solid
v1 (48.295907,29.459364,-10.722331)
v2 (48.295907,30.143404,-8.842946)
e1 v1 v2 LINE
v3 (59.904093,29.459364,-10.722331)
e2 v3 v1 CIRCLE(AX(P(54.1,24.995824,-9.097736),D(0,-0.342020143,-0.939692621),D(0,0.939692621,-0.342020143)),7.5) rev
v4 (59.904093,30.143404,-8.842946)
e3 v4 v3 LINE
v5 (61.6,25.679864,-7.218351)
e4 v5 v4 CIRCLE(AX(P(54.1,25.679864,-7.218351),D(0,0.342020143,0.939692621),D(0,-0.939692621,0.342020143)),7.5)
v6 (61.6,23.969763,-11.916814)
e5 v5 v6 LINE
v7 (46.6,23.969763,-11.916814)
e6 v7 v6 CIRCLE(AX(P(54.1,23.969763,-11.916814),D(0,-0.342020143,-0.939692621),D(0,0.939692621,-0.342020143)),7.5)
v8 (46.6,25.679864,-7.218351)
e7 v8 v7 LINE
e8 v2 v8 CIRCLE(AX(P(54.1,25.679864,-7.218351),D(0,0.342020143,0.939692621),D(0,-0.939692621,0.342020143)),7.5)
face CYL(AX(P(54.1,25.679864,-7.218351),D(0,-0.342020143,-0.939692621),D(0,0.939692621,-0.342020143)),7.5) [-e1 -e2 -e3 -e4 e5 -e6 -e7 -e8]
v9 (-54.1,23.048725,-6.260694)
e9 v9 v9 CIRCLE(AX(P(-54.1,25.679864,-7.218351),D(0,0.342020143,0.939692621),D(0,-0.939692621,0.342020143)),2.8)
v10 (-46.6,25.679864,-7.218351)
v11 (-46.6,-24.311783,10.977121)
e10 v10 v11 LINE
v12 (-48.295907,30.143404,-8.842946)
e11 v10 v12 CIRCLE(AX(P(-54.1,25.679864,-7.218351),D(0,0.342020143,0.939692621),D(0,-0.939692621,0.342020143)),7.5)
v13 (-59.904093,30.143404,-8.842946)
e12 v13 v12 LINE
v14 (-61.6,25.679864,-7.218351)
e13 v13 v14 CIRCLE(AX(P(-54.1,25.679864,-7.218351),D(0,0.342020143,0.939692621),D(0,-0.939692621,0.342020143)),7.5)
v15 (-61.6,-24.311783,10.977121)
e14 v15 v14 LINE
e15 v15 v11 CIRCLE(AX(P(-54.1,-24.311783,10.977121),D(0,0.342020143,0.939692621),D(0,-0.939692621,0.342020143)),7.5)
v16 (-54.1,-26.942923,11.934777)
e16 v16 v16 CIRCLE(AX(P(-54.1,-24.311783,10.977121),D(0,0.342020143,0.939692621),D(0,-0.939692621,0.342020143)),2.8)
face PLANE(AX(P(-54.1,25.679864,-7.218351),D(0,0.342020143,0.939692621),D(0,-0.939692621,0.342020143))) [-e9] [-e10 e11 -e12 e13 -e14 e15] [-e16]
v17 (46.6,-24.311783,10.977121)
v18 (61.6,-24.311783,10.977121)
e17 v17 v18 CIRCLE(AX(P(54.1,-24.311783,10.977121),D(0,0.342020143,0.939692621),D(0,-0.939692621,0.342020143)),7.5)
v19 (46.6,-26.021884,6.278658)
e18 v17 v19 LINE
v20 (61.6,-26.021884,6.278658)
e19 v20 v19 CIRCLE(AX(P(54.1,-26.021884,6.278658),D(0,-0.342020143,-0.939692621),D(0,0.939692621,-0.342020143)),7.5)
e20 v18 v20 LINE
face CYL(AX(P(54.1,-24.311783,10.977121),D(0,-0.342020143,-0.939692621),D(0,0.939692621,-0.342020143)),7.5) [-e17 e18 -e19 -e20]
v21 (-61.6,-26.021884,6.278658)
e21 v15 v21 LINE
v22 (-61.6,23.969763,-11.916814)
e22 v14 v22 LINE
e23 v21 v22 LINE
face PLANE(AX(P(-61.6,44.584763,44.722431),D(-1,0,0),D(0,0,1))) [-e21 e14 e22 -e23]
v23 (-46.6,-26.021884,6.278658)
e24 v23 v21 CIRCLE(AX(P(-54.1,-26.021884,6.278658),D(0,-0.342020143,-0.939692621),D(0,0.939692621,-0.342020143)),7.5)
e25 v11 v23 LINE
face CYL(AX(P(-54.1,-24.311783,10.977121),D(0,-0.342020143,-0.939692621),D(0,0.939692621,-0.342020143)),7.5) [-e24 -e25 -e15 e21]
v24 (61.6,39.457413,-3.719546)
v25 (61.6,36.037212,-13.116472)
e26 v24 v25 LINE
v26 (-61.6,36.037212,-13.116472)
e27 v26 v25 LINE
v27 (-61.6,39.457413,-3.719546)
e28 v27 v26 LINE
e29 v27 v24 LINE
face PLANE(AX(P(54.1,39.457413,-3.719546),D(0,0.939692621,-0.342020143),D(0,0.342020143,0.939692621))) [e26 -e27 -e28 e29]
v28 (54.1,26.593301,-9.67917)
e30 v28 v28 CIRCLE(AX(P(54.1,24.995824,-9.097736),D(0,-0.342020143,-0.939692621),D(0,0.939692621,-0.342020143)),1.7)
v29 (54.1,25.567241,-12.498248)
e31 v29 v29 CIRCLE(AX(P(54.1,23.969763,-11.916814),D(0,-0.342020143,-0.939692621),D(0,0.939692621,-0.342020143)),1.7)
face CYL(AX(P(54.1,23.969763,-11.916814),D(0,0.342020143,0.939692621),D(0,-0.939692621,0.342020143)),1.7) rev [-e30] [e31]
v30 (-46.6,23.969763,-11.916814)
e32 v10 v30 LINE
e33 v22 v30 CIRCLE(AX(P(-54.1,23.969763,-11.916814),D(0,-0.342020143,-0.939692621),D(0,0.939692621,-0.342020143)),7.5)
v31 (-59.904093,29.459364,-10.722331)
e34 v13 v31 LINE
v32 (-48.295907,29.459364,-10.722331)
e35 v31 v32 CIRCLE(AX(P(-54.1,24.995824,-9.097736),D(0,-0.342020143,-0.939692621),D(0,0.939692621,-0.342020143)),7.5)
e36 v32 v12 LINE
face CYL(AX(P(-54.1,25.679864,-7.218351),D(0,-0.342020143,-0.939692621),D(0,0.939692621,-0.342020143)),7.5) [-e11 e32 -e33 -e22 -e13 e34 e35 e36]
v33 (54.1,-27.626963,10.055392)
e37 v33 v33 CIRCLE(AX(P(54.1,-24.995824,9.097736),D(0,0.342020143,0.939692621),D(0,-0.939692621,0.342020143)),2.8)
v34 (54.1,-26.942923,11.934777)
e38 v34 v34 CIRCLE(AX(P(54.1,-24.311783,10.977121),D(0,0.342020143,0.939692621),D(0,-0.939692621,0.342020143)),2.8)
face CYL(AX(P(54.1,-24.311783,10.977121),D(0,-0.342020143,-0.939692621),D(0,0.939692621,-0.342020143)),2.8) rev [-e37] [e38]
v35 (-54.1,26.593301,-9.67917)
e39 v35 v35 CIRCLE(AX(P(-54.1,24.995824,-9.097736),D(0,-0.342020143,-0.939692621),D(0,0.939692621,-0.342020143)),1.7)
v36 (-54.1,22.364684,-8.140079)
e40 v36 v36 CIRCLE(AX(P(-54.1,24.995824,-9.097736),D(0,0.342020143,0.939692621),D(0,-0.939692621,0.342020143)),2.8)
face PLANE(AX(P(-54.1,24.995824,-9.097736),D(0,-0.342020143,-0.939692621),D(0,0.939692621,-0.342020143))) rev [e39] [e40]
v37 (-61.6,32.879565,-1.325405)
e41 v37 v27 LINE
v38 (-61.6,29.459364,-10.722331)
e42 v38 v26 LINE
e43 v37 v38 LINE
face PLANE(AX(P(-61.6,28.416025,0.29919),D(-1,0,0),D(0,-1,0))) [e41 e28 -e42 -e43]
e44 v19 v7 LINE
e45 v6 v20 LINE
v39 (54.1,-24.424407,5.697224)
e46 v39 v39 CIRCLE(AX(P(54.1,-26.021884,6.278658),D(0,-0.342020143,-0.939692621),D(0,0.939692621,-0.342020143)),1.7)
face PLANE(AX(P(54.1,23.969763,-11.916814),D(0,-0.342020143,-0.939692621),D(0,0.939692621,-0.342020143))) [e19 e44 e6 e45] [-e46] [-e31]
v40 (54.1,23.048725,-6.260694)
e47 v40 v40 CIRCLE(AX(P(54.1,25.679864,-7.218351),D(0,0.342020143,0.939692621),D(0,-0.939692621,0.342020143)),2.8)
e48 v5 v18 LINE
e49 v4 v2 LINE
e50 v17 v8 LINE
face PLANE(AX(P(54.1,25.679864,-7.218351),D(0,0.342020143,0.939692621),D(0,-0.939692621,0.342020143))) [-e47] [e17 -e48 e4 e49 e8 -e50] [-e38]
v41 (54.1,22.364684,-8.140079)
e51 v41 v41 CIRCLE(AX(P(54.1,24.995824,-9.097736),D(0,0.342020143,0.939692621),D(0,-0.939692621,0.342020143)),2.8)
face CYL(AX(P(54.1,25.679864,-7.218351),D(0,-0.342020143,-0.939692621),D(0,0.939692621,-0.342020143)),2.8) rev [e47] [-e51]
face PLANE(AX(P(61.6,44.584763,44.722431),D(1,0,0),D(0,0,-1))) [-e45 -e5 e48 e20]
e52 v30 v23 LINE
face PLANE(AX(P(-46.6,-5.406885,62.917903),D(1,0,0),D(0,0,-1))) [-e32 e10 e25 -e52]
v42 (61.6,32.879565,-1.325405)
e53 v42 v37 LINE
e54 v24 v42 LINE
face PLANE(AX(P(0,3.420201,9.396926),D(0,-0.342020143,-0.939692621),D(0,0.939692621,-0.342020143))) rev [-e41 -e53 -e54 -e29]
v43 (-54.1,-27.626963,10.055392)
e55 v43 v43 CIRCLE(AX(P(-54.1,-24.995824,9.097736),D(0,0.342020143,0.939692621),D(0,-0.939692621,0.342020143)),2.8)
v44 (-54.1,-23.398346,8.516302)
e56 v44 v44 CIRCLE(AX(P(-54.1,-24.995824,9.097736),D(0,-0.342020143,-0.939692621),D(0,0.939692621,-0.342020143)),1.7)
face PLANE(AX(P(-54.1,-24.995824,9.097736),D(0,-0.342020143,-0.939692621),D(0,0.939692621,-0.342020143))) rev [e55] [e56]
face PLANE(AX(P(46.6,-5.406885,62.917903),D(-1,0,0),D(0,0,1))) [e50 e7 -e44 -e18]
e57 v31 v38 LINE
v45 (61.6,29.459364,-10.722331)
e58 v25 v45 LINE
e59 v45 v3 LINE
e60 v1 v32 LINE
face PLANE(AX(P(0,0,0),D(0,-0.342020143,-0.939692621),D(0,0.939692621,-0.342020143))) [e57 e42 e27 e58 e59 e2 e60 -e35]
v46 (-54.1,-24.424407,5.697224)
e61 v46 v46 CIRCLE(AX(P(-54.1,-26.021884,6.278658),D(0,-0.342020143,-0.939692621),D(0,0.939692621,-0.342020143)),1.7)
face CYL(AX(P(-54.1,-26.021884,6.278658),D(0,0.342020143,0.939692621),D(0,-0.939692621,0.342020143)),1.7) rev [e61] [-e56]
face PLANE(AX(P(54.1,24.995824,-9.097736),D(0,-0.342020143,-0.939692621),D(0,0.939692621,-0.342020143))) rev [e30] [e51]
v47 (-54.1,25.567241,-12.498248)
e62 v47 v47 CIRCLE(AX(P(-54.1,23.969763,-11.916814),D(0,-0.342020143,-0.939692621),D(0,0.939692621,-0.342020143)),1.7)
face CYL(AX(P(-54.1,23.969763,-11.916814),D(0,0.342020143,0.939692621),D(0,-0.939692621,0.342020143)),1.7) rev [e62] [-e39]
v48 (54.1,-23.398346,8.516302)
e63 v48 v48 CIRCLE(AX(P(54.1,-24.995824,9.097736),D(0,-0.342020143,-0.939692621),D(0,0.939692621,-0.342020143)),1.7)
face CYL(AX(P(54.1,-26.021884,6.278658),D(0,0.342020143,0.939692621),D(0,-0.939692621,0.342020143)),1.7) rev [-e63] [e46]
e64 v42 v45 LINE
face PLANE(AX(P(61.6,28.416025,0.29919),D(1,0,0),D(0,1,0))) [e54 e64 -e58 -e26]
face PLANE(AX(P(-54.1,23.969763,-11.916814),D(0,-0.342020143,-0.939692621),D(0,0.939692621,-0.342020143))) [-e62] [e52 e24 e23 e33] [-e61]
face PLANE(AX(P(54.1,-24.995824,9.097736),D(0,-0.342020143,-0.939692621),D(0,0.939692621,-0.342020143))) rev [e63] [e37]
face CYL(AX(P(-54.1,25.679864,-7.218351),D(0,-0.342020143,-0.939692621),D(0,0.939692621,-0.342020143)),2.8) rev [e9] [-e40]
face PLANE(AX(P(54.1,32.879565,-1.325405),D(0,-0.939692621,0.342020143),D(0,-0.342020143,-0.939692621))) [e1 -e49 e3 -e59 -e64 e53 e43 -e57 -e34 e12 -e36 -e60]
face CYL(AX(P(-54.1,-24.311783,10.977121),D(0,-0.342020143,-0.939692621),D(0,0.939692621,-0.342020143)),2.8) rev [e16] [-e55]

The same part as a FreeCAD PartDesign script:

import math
import FreeCAD as App
import Part
import Sketcher
from FreeCAD import Vector


def add_polygon(sketch, points):
    """Adds a closed chain of lines whose ends are joined by coincident constraints."""
    first, n = sketch.GeometryCount, len(points)
    for a, b in zip(points, points[1:] + points[:1]):
        sketch.addGeometry(Part.LineSegment(App.Vector(*a, 0), App.Vector(*b, 0)), False)
    for i in range(n):
        sketch.addConstraint(Sketcher.Constraint("Coincident", first + i, 2, first + (i + 1) % n, 1))

doc = App.newDocument("Part")
body = doc.addObject("PartDesign::Body", "Body")

# Sketch on an angled plane
sketch1 = body.newObject("Sketcher::SketchObject", "Sketch")
sketch1.Placement = App.Placement(Vector(0, 0, 0), App.Rotation(Vector(1, 0, 0), Vector(0, 0.939692621, -0.342020143), Vector(0, 0.342020143, 0.939692621), "ZXY"))
sketch1.addGeometry(Part.Circle(Vector(-54.1, 26.6, 0), Vector(0, 0, 1), 7.5), False)
sketch1.addGeometry(Part.Circle(Vector(-54.1, 26.6, 0), Vector(0, 0, 1), 2.8), False)
sketch1.addConstraint(Sketcher.Constraint("Coincident", 1, 3, 0, 3))
sketch1.addConstraint(Sketcher.Constraint("Diameter", 0, 15.0))
sketch1.addConstraint(Sketcher.Constraint("Diameter", 1, 5.6))
sketch1.addConstraint(Sketcher.Constraint("DistanceX", 0, 3, -1, 1, 54.1))
sketch1.addConstraint(Sketcher.Constraint("DistanceY", -1, 1, 0, 3, 26.6))
pad1 = body.newObject("PartDesign::Pad", "Pad")
pad1.Profile = sketch1
pad1.Length = 2
body2 = doc.addObject("PartDesign::Body", "Body001")

# Sketch on an angled plane
sketch2 = body2.newObject("Sketcher::SketchObject", "Sketch001")
sketch2.Placement = App.Placement(Vector(0, 0, 0), App.Rotation(Vector(1, 0, 0), Vector(0, 0.939692621, -0.342020143), Vector(0, 0.342020143, 0.939692621), "ZXY"))
sketch2.addGeometry(Part.Circle(Vector(54.1, 26.6, 0), Vector(0, 0, 1), 7.5), False)
sketch2.addGeometry(Part.Circle(Vector(54.1, 26.6, 0), Vector(0, 0, 1), 2.8), False)
sketch2.addConstraint(Sketcher.Constraint("Coincident", 1, 3, 0, 3))
sketch2.addConstraint(Sketcher.Constraint("Diameter", 0, 15.0))
sketch2.addConstraint(Sketcher.Constraint("Diameter", 1, 5.6))
sketch2.addConstraint(Sketcher.Constraint("DistanceX", -1, 1, 0, 3, 54.1))
sketch2.addConstraint(Sketcher.Constraint("DistanceY", -1, 1, 0, 3, 26.6))
pad2 = body2.newObject("PartDesign::Pad", "Pad001")
pad2.Profile = sketch2
pad2.Length = 2
body3 = doc.addObject("PartDesign::Body", "Body002")

# Sketch on an angled plane
sketch3 = body3.newObject("Sketcher::SketchObject", "Sketch002")
sketch3.Placement = App.Placement(Vector(0, 0, 0), App.Rotation(Vector(1, 0, 0), Vector(0, 0.939692621, -0.342020143), Vector(0, 0.342020143, 0.939692621), "ZXY"))
sketch3.addGeometry(Part.Circle(Vector(54.1, -26.6, 0), Vector(0, 0, 1), 7.5), False)
sketch3.addGeometry(Part.Circle(Vector(54.1, -26.6, 0), Vector(0, 0, 1), 2.8), False)
sketch3.addConstraint(Sketcher.Constraint("Coincident", 1, 3, 0, 3))
sketch3.addConstraint(Sketcher.Constraint("Diameter", 0, 15.0))
sketch3.addConstraint(Sketcher.Constraint("Diameter", 1, 5.6))
sketch3.addConstraint(Sketcher.Constraint("DistanceX", -1, 1, 0, 3, 54.1))
sketch3.addConstraint(Sketcher.Constraint("DistanceY", 0, 3, -1, 1, 26.6))
pad3 = body3.newObject("PartDesign::Pad", "Pad002")
pad3.Profile = sketch3
pad3.Length = 2
body4 = doc.addObject("PartDesign::Body", "Body003")

# Sketch on an angled plane
sketch4 = body4.newObject("Sketcher::SketchObject", "Sketch003")
sketch4.Placement = App.Placement(Vector(0, 0, 0), App.Rotation(Vector(1, 0, 0), Vector(0, 0.939692621, -0.342020143), Vector(0, 0.342020143, 0.939692621), "ZXY"))
sketch4.addGeometry(Part.Circle(Vector(-54.1, -26.6, 0), Vector(0, 0, 1), 7.5), False)
sketch4.addGeometry(Part.Circle(Vector(-54.1, -26.6, 0), Vector(0, 0, 1), 2.8), False)
sketch4.addConstraint(Sketcher.Constraint("Coincident", 1, 3, 0, 3))
sketch4.addConstraint(Sketcher.Constraint("Diameter", 0, 15.0))
sketch4.addConstraint(Sketcher.Constraint("Diameter", 1, 5.6))
sketch4.addConstraint(Sketcher.Constraint("DistanceX", 0, 3, -1, 1, 54.1))
sketch4.addConstraint(Sketcher.Constraint("DistanceY", 0, 3, -1, 1, 26.6))
pad4 = body4.newObject("PartDesign::Pad", "Pad003")
pad4.Profile = sketch4
pad4.Length = 2
body.AllowCompound = True
doc.recompute()

boolean = body.newObject("PartDesign::Boolean", "Boolean")
boolean.Type = "Fuse"
boolean.addObjects([body2])
doc.recompute()

boolean2 = body.newObject("PartDesign::Boolean", "Boolean001")
boolean2.Type = "Fuse"
boolean2.addObjects([body3])
doc.recompute()

boolean3 = body.newObject("PartDesign::Boolean", "Boolean002")
boolean3.Type = "Fuse"
boolean3.addObjects([body4])

# Sketch on an angled plane
sketch5 = body.newObject("Sketcher::SketchObject", "Sketch004")
sketch5.Placement = App.Placement(Vector(0, 0, 0), App.Rotation(Vector(-1, 0, 0), Vector(0, 0.939692621, -0.342020143), Vector(0, -0.342020143, -0.939692621), "ZXY"))
sketch5.addGeometry(Part.Circle(Vector(-54.1, 26.6, 0), Vector(0, 0, 1), 7.5), False)
sketch5.addGeometry(Part.Circle(Vector(-54.1, 26.6, 0), Vector(0, 0, 1), 1.7), False)
sketch5.addGeometry(Part.Circle(Vector(54.1, 26.6, 0), Vector(0, 0, 1), 7.5), False)
sketch5.addGeometry(Part.Circle(Vector(54.1, 26.6, 0), Vector(0, 0, 1), 1.7), False)
sketch5.addGeometry(Part.Circle(Vector(54.1, -26.6, 0), Vector(0, 0, 1), 7.5), False)
sketch5.addGeometry(Part.Circle(Vector(54.1, -26.6, 0), Vector(0, 0, 1), 1.7), False)
sketch5.addGeometry(Part.Circle(Vector(-54.1, -26.6, 0), Vector(0, 0, 1), 7.5), False)
sketch5.addGeometry(Part.Circle(Vector(-54.1, -26.6, 0), Vector(0, 0, 1), 1.7), False)
sketch5.addConstraint(Sketcher.Constraint("Coincident", 1, 3, 0, 3))
sketch5.addConstraint(Sketcher.Constraint("Coincident", 3, 3, 2, 3))
sketch5.addConstraint(Sketcher.Constraint("Coincident", 5, 3, 4, 3))
sketch5.addConstraint(Sketcher.Constraint("Coincident", 7, 3, 6, 3))
sketch5.addConstraint(Sketcher.Constraint("Equal", 0, 2))
sketch5.addConstraint(Sketcher.Constraint("Equal", 1, 3))
sketch5.addConstraint(Sketcher.Constraint("Equal", 2, 4))
sketch5.addConstraint(Sketcher.Constraint("Equal", 3, 5))
sketch5.addConstraint(Sketcher.Constraint("Equal", 4, 6))
sketch5.addConstraint(Sketcher.Constraint("Equal", 5, 7))
sketch5.addConstraint(Sketcher.Constraint("Symmetric", 0, 3, 4, 3, -1, 1))
sketch5.addConstraint(Sketcher.Constraint("Symmetric", 2, 3, 6, 3, -1, 1))
sketch5.addConstraint(Sketcher.Constraint("Symmetric", 0, 3, 2, 3, -2))
sketch5.addConstraint(Sketcher.Constraint("Diameter", 0, 15.0))
sketch5.addConstraint(Sketcher.Constraint("Diameter", 1, 3.4))
sketch5.addConstraint(Sketcher.Constraint("DistanceX", 0, 3, -1, 1, 54.1))
sketch5.addConstraint(Sketcher.Constraint("DistanceY", -1, 1, 0, 3, 26.6))
pad5 = body.newObject("PartDesign::Pad", "Pad004")
pad5.Profile = sketch5
pad5.Length = 3

# Sketch on an angled plane
sketch6 = body.newObject("Sketcher::SketchObject", "Sketch005")
sketch6.Placement = App.Placement(Vector(0, -1.02606, -2.819078), App.Rotation(Vector(-1, 0, 0), Vector(0, 0.939692621, -0.342020143), Vector(0, -0.342020143, -0.939692621), "ZXY"))
sketch6.addGeometry(Part.LineSegment(Vector(-61.6, 26.6, 0), Vector(-61.6, -26.6, 0)), False)
sketch6.addGeometry(Part.ArcOfCircle(Part.Circle(Vector(-54.1, -26.6, 0), Vector(0, 0, 1), 7.5), math.radians(0), math.radians(180)), False)
sketch6.addGeometry(Part.LineSegment(Vector(-46.6, -26.6, 0), Vector(-46.6, 26.6, 0)), False)
sketch6.addGeometry(Part.ArcOfCircle(Part.Circle(Vector(-54.1, 26.6, 0), Vector(0, 0, 1), 7.5), math.radians(180), math.radians(360)), False)
sketch6.addGeometry(Part.LineSegment(Vector(61.6, -26.6, 0), Vector(61.6, 26.6, 0)), False)
sketch6.addGeometry(Part.ArcOfCircle(Part.Circle(Vector(54.1, 26.6, 0), Vector(0, 0, 1), 7.5), math.radians(180), math.radians(360)), False)
sketch6.addGeometry(Part.LineSegment(Vector(46.6, 26.6, 0), Vector(46.6, -26.6, 0)), False)
sketch6.addGeometry(Part.ArcOfCircle(Part.Circle(Vector(54.1, -26.6, 0), Vector(0, 0, 1), 7.5), math.radians(0), math.radians(180)), False)
sketch6.addConstraint(Sketcher.Constraint("Tangent", 0, 2, 1, 2))
sketch6.addConstraint(Sketcher.Constraint("Tangent", 1, 1, 2, 1))
sketch6.addConstraint(Sketcher.Constraint("Tangent", 2, 2, 3, 2))
sketch6.addConstraint(Sketcher.Constraint("Tangent", 3, 1, 0, 1))
sketch6.addConstraint(Sketcher.Constraint("Tangent", 4, 2, 5, 2))
sketch6.addConstraint(Sketcher.Constraint("Tangent", 5, 1, 6, 1))
sketch6.addConstraint(Sketcher.Constraint("Tangent", 6, 2, 7, 2))
sketch6.addConstraint(Sketcher.Constraint("Tangent", 7, 1, 4, 1))
sketch6.addConstraint(Sketcher.Constraint("Vertical", 0))
sketch6.addConstraint(Sketcher.Constraint("Vertical", 2))
sketch6.addConstraint(Sketcher.Constraint("Vertical", 4))
sketch6.addConstraint(Sketcher.Constraint("Vertical", 6))
sketch6.addConstraint(Sketcher.Constraint("Equal", 3, 5))
sketch6.addConstraint(Sketcher.Constraint("Symmetric", 1, 3, 5, 3, -1, 1))
sketch6.addConstraint(Sketcher.Constraint("Horizontal", 3, 3, 5, 3))
sketch6.addConstraint(Sketcher.Constraint("Horizontal", 1, 3, 7, 3))
sketch6.addConstraint(Sketcher.Constraint("Radius", 1, 7.5))
sketch6.addConstraint(Sketcher.Constraint("DistanceY", 0, 2, 0, 1, 53.2))
sketch6.addConstraint(Sketcher.Constraint("DistanceX", 1, 3, -1, 1, 54.1))
pad6 = body.newObject("PartDesign::Pad", "Pad005")
pad6.Profile = sketch6
pad6.Length = 5
pad6.Reversed = True

# Sketch on an angled plane
sketch7 = body.newObject("Sketcher::SketchObject", "Sketch006")
sketch7.Placement = App.Placement(Vector(0, 0, 0), App.Rotation(Vector(1, 0, 0), Vector(0, 0.939692621, -0.342020143), Vector(0, 0.342020143, 0.939692621), "ZXY"))
add_polygon(sketch7, [(-61.6, 38.35), (-61.6, 31.35), (61.6, 31.35), (61.6, 38.35)])  # lines 0-3
sketch7.addConstraint(Sketcher.Constraint("Vertical", 0))
sketch7.addConstraint(Sketcher.Constraint("Horizontal", 1))
sketch7.addConstraint(Sketcher.Constraint("Vertical", 2))
sketch7.addConstraint(Sketcher.Constraint("Horizontal", 3))
sketch7.addConstraint(Sketcher.Constraint("DistanceY", 0, 2, 0, 1, 7.0))
sketch7.addConstraint(Sketcher.Constraint("DistanceX", 1, 1, 1, 2, 123.2))
sketch7.addConstraint(Sketcher.Constraint("DistanceX", 0, 2, -1, 1, 61.6))
sketch7.addConstraint(Sketcher.Constraint("DistanceY", -1, 1, 0, 2, 31.35))
pad7 = body.newObject("PartDesign::Pad", "Pad006")
pad7.Profile = sketch7
pad7.Length = 10

doc.recompute()
